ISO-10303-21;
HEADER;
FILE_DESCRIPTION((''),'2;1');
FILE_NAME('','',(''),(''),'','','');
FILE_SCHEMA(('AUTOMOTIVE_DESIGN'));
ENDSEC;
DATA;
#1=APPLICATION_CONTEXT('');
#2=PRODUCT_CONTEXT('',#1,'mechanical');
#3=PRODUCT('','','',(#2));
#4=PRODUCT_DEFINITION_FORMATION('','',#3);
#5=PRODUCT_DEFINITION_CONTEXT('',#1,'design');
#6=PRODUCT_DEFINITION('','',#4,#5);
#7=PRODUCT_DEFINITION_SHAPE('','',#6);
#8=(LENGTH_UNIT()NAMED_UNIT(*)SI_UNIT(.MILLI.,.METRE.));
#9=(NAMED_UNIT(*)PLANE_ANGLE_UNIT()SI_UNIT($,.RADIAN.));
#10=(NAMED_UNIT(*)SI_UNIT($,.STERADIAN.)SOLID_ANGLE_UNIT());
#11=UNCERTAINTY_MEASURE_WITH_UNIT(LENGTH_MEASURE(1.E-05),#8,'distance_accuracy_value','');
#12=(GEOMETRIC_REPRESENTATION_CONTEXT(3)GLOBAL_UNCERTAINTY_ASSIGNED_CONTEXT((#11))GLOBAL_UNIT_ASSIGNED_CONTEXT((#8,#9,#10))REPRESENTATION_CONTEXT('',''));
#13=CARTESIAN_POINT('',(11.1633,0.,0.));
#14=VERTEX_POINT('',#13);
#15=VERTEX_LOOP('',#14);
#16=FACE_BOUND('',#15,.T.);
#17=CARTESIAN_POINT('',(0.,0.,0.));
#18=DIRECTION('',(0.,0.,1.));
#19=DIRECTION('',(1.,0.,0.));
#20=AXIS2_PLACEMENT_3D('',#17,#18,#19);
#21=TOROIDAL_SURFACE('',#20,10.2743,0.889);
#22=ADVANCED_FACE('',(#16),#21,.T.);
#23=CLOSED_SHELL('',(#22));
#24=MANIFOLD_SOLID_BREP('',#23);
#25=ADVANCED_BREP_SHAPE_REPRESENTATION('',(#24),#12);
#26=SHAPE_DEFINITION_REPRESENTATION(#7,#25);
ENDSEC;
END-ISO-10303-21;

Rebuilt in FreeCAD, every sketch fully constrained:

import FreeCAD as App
import Part
import Sketcher

V = App.Vector
Q = App.Units.Quantity

doc = App.newDocument("Part")
params = doc.addObject("Spreadsheet::Sheet", "Params")
for row, (alias, value) in enumerate([
    ("sketch1_diameter", "0.07 in"),
    ("revolution_angle", "360 deg"),
], start=1):
    params.set(f"A{row}", alias)
    params.set(f"B{row}", "=" + value)
    params.setAlias(f"B{row}", alias)

body = doc.addObject("PartDesign::Body", "Body")

sketch1 = body.newObject("Sketcher::SketchObject", "Sketch")
sketch1.AttachmentSupport = (doc.getObject("YZ_Plane"), [""])
sketch1.MapMode = "FlatFace"
sketch1.addGeometry(Part.Circle(V(-10.2743, 0, 0), V(0, 0, 1), 0.889), False)
sketch1.addConstraint(Sketcher.Constraint("PointOnObject", 0, 3, -1))
sketch1.addConstraint(Sketcher.Constraint("Diameter", 0, Q("0.07 in")))
sketch1.addConstraint(Sketcher.Constraint("DistanceX", 0, 3, -1, 1, Q("0.4045 in")))
sketch1.setExpression("Constraints[1]", "Params.sketch1_diameter")
revolution = body.newObject("PartDesign::Revolution", "Revolution")
revolution.Profile = sketch1
revolution.ReferenceAxis = (sketch1, ["V_Axis"])
revolution.setExpression("Angle", "Params.revolution_angle")

doc.recompute()
